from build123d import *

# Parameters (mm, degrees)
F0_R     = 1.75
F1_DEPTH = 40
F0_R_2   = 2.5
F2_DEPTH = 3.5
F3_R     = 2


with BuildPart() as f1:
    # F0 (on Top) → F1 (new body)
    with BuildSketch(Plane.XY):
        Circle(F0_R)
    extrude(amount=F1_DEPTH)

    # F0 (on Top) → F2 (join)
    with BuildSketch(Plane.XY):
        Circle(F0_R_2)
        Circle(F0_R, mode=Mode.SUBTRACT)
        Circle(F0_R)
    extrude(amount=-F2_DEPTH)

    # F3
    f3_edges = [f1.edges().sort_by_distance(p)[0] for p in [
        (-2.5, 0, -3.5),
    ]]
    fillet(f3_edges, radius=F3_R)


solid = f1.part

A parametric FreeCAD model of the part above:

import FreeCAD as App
import Part
import Sketcher
Q = App.Units.Quantity


def edges_at(feature, points):
    """Names of the edges that pass closest to the given points."""
    edges = feature.Shape.Edges
    near = lambda p: min(range(len(edges)), key=lambda i: edges[i].distToShape(Part.Vertex(*p))[0])
    return sorted({f"Edge{near(p) + 1}" for p in points})

doc = App.newDocument("Part")
body = doc.addObject("PartDesign::Body", "Body")

# Sketch on XY plane
sketch1 = body.newObject("Sketcher::SketchObject", "Sketch")
sketch1.AttachmentSupport = (doc.getObject("XY_Plane"), [""])
sketch1.MapMode = "FlatFace"
sketch1.addGeometry(Part.Circle(App.Vector(0, 0, 0), App.Vector(0, 0, 1), 1.75), False)
sketch1.addConstraint([
    Sketcher.Constraint("Coincident", 0, 3, -1, 1),
    Sketcher.Constraint("Diameter", 0, Q("3.5 mm")),
])
pad1 = body.newObject("PartDesign::Pad", "Pad")
pad1.Profile = sketch1
pad1.Length = 40

# Sketch on XY plane
sketch2 = body.newObject("Sketcher::SketchObject", "Sketch001")
sketch2.AttachmentSupport = (doc.getObject("XY_Plane"), [""])
sketch2.MapMode = "FlatFace"
sketch2.addGeometry(Part.Circle(App.Vector(0, 0, 0), App.Vector(0, 0, 1), 2.5), False)
sketch2.addConstraint([
    Sketcher.Constraint("Coincident", 0, 3, -1, 1),
    Sketcher.Constraint("Diameter", 0, Q("5 mm")),
])
pad2 = body.newObject("PartDesign::Pad", "Pad001")
pad2.Profile = sketch2
pad2.Length = 3.5
pad2.Reversed = True
doc.recompute()

fillet = body.newObject("PartDesign::Fillet", "Fillet")
fillet.Base = (pad2, edges_at(pad2, [(-2.5, 0, -3.5)]))
fillet.Radius = 2

doc.recompute()
